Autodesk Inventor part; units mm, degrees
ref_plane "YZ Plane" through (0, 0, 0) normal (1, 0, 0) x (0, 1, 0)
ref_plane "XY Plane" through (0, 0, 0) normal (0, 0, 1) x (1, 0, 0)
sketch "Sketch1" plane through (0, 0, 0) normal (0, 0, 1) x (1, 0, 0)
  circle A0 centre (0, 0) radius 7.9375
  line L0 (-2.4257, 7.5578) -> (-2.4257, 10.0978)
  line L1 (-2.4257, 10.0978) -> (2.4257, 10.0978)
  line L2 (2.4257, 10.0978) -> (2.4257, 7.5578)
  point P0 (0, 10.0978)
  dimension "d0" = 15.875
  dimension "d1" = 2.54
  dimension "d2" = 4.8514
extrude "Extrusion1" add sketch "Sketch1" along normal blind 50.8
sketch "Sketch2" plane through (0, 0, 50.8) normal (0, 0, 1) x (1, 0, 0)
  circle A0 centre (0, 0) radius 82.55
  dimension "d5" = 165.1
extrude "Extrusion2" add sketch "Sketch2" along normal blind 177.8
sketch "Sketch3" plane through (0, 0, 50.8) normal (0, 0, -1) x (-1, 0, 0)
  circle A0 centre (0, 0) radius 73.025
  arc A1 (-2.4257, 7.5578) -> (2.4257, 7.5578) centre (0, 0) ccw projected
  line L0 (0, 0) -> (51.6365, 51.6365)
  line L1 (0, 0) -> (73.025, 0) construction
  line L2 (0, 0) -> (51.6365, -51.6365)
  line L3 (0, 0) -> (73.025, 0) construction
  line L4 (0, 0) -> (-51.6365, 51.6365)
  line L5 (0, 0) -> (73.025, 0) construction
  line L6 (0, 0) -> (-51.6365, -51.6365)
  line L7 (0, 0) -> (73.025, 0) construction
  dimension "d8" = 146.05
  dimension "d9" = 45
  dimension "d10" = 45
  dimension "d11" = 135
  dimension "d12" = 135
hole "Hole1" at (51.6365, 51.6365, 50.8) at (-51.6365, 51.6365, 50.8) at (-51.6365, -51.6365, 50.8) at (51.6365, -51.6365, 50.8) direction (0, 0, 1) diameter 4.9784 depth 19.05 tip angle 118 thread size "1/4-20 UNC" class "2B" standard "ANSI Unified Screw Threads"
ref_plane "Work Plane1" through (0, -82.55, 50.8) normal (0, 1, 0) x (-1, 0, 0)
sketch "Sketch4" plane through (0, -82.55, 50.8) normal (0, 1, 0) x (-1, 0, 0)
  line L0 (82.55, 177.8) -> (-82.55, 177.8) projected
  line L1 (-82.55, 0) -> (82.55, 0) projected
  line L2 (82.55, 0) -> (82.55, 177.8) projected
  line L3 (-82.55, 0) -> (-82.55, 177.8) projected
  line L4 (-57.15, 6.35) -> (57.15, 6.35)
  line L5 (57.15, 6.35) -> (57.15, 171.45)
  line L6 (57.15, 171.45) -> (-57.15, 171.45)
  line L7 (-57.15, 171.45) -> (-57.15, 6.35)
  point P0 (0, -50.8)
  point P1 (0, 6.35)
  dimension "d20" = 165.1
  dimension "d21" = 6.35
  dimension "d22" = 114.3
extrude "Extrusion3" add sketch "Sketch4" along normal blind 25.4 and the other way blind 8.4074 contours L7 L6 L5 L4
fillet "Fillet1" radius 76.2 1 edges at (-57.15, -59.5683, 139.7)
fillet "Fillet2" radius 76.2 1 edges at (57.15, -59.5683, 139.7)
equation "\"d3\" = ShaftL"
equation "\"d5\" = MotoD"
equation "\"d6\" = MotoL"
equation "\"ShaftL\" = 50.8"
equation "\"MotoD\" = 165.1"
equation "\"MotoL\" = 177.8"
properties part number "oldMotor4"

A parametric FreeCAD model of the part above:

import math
import FreeCAD as App
import Part
import Sketcher

V = App.Vector
Q = App.Units.Quantity


def edges_at(feature, points):
    """Names of the edges that pass closest to the given points."""
    edges = feature.Shape.Edges
    near = lambda p: min(range(len(edges)), key=lambda i: edges[i].distToShape(Part.Vertex(*p))[0])
    return sorted({f"Edge{near(p) + 1}" for p in points})


def add_polygon(sketch, points):
    """Adds a closed chain of lines whose ends are joined by coincident constraints."""
    first, n = sketch.GeometryCount, len(points)
    for a, b in zip(points, points[1:] + points[:1]):
        sketch.addGeometry(Part.LineSegment(App.Vector(*a, 0), App.Vector(*b, 0)), False)
    for i in range(n):
        sketch.addConstraint(Sketcher.Constraint("Coincident", first + i, 2, first + (i + 1) % n, 1))

doc = App.newDocument("Part")
params = doc.addObject("Spreadsheet::Sheet", "Params")
for row, (alias, value) in enumerate([
    ("sketch1_height", "0.1 in"),
    ("sketch1_radius", "0.3125 in"),
    ("sketch1_width", "0.191 in"),
    ("pad1_length", "2 in"),
    ("sketch2_diameter", "6.5 in"),
    ("pad2_length", "7 in"),
    ("sketch3_diameter", "0.196 in"),
    ("hole_diameter", "0.196 in"),
    ("hole_depth", "0.75 in"),
    ("sketch4_width", "4.5 in"),
    ("sketch4_height", "6.5 in"),
    ("pad3_length", "1 in"),
    ("pad3_length2", "0.331 in"),
    ("fillet_radius", "3 in"),
    ("fillet2_radius", "3 in"),
], start=1):
    params.set(f"A{row}", alias)
    params.set(f"B{row}", "=" + value)
    params.setAlias(f"B{row}", alias)

body = doc.addObject("PartDesign::Body", "Body")

# Sketch on XY plane
sketch1 = body.newObject("Sketcher::SketchObject", "Sketch")
sketch1.AttachmentSupport = (doc.getObject("XY_Plane"), [""])
sketch1.MapMode = "FlatFace"
sketch1.addGeometry(Part.ArcOfCircle(Part.Circle(V(0, 0, 0), V(0, 0, 1), 7.9375), math.radians(107.794199), math.radians(432.205801)), False)
sketch1.addGeometry(Part.LineSegment(V(2.4257, 7.5578, 0), V(2.4257, 10.0978, 0)), False)
sketch1.addGeometry(Part.LineSegment(V(2.4257, 10.0978, 0), V(-2.4257, 10.0978, 0)), False)
sketch1.addGeometry(Part.LineSegment(V(-2.4257, 10.0978, 0), V(-2.4257, 7.5578, 0)), False)
sketch1.addConstraint(Sketcher.Constraint("Coincident", 0, 2, 1, 1))
sketch1.addConstraint(Sketcher.Constraint("Coincident", 1, 2, 2, 1))
sketch1.addConstraint(Sketcher.Constraint("Coincident", 2, 2, 3, 1))
sketch1.addConstraint(Sketcher.Constraint("Coincident", 3, 2, 0, 1))
sketch1.addConstraint(Sketcher.Constraint("Vertical", 1))
sketch1.addConstraint(Sketcher.Constraint("Horizontal", 2))
sketch1.addConstraint(Sketcher.Constraint("Vertical", 3))
sketch1.addConstraint(Sketcher.Constraint("Coincident", 0, 3, -1, 1))
sketch1.addConstraint(Sketcher.Constraint("Horizontal", 0, 2, 3, 2))
sketch1.addConstraint(Sketcher.Constraint("DistanceY", 1, 1, 1, 2, Q("0.1 in")))
sketch1.addConstraint(Sketcher.Constraint("Radius", 0, Q("0.3125 in")))
sketch1.addConstraint(Sketcher.Constraint("DistanceX", 2, 2, 2, 1, Q("0.191 in")))
sketch1.setExpression("Constraints[9]", "Params.sketch1_height")
sketch1.setExpression("Constraints[10]", "Params.sketch1_radius")
sketch1.setExpression("Constraints[11]", "Params.sketch1_width")
pad1 = body.newObject("PartDesign::Pad", "Pad")
pad1.Profile = sketch1
pad1.setExpression("Length", "Params.pad1_length")

# Sketch on XY plane
sketch2 = body.newObject("Sketcher::SketchObject", "Sketch001")
sketch2.AttachmentSupport = (doc.getObject("XY_Plane"), [""])
sketch2.MapMode = "FlatFace"
sketch2.AttachmentOffset = App.Placement(V(0, 0, 2 * 25.4), App.Rotation())
sketch2.addGeometry(Part.Circle(V(0, 0, 0), V(0, 0, 1), 82.55), False)
sketch2.addConstraint(Sketcher.Constraint("Coincident", 0, 3, -1, 1))
sketch2.addConstraint(Sketcher.Constraint("Diameter", 0, Q("6.5 in")))
sketch2.setExpression("Constraints[1]", "Params.sketch2_diameter")
pad2 = body.newObject("PartDesign::Pad", "Pad001")
pad2.Profile = sketch2
pad2.setExpression("Length", "Params.pad2_length")

# Sketch on XY plane
sketch3 = body.newObject("Sketcher::SketchObject", "Sketch002")
sketch3.AttachmentSupport = (doc.getObject("XY_Plane"), [""])
sketch3.MapMode = "FlatFace"
sketch3.AttachmentOffset = App.Placement(V(0, 0, 2 * 25.4), App.Rotation())
sketch3.addGeometry(Part.Circle(V(51.6365, 51.6365, 0), V(0, 0, 1), 2.4892), False)
sketch3.addGeometry(Part.Circle(V(-51.6365, 51.6365, 0), V(0, 0, 1), 2.4892), False)
sketch3.addGeometry(Part.Circle(V(-51.6365, -51.6365, 0), V(0, 0, 1), 2.4892), False)
sketch3.addGeometry(Part.Circle(V(51.6365, -51.6365, 0), V(0, 0, 1), 2.4892), False)
sketch3.addConstraint(Sketcher.Constraint("Equal", 0, 1))
sketch3.addConstraint(Sketcher.Constraint("Equal", 1, 2))
sketch3.addConstraint(Sketcher.Constraint("Equal", 2, 3))
sketch3.addConstraint(Sketcher.Constraint("Symmetric", 0, 3, 2, 3, -1, 1))
sketch3.addConstraint(Sketcher.Constraint("Symmetric", 1, 3, 3, 3, -1, 1))
sketch3.addConstraint(Sketcher.Constraint("Symmetric", 0, 3, 1, 3, -2))
sketch3.addConstraint(Sketcher.Constraint("Diameter", 0, Q("0.196 in")))
sketch3.addConstraint(Sketcher.Constraint("DistanceX", -1, 1, 0, 3, Q("51.6365 mm")))
sketch3.addConstraint(Sketcher.Constraint("DistanceY", -1, 1, 0, 3, Q("51.6365 mm")))
sketch3.setExpression("Constraints[6]", "Params.sketch3_diameter")
doc.recompute()
hole = body.newObject("PartDesign::Hole", "Hole")
hole.Profile = sketch3
hole.ThreadType = "None"
hole.setExpression("Diameter", "Params.hole_diameter")
hole.DepthType = "Dimension"
hole.setExpression("Depth", "Params.hole_depth")
hole.DrillPoint = "Angled"
hole.DrillPointAngle = 118
hole.Reversed = True

# Sketch on XZ plane
sketch4 = body.newObject("Sketcher::SketchObject", "Sketch003")
sketch4.AttachmentSupport = (doc.getObject("XZ_Plane"), [""])
sketch4.MapMode = "FlatFace"
sketch4.AttachmentOffset = App.Placement(V(0, 0, 3.25 * 25.4), App.Rotation())
add_polygon(sketch4, [(57.15, 222.25), (57.15, 57.15), (-57.15, 57.15), (-57.15, 222.25)])  # lines 0-3
sketch4.addConstraint(Sketcher.Constraint("Vertical", 0))
sketch4.addConstraint(Sketcher.Constraint("Horizontal", 1))
sketch4.addConstraint(Sketcher.Constraint("Vertical", 2))
sketch4.addConstraint(Sketcher.Constraint("Horizontal", 3))
sketch4.addConstraint(Sketcher.Constraint("DistanceX", 1, 2, 1, 1, Q("4.5 in")))
sketch4.addConstraint(Sketcher.Constraint("DistanceY", 0, 2, 0, 1, Q("6.5 in")))
sketch4.addConstraint(Sketcher.Constraint("DistanceX", -1, 1, 0, 2, Q("2.25 in")))
sketch4.addConstraint(Sketcher.Constraint("DistanceY", -1, 1, 0, 2, Q("2.25 in")))
sketch4.setExpression("Constraints[8]", "Params.sketch4_width")
sketch4.setExpression("Constraints[9]", "Params.sketch4_height")
pad3 = body.newObject("PartDesign::Pad", "Pad002")
pad3.Profile = sketch4
pad3.Type = "TwoLengths"
pad3.setExpression("Length", "Params.pad3_length")
pad3.setExpression("Length2", "Params.pad3_length2")
pad3.Reversed = True
doc.recompute()

fillet = body.newObject("PartDesign::Fillet", "Fillet")
fillet.Base = (pad3, edges_at(pad3, [(-57.15, -59.568, 139.7)]))
fillet.setExpression("Radius", "Params.fillet_radius")
doc.recompute()

fillet2 = body.newObject("PartDesign::Fillet", "Fillet001")
fillet2.Base = (fillet, edges_at(fillet, [(57.15, -59.568, 139.7)]))
fillet2.setExpression("Radius", "Params.fillet2_radius")

doc.recompute()
